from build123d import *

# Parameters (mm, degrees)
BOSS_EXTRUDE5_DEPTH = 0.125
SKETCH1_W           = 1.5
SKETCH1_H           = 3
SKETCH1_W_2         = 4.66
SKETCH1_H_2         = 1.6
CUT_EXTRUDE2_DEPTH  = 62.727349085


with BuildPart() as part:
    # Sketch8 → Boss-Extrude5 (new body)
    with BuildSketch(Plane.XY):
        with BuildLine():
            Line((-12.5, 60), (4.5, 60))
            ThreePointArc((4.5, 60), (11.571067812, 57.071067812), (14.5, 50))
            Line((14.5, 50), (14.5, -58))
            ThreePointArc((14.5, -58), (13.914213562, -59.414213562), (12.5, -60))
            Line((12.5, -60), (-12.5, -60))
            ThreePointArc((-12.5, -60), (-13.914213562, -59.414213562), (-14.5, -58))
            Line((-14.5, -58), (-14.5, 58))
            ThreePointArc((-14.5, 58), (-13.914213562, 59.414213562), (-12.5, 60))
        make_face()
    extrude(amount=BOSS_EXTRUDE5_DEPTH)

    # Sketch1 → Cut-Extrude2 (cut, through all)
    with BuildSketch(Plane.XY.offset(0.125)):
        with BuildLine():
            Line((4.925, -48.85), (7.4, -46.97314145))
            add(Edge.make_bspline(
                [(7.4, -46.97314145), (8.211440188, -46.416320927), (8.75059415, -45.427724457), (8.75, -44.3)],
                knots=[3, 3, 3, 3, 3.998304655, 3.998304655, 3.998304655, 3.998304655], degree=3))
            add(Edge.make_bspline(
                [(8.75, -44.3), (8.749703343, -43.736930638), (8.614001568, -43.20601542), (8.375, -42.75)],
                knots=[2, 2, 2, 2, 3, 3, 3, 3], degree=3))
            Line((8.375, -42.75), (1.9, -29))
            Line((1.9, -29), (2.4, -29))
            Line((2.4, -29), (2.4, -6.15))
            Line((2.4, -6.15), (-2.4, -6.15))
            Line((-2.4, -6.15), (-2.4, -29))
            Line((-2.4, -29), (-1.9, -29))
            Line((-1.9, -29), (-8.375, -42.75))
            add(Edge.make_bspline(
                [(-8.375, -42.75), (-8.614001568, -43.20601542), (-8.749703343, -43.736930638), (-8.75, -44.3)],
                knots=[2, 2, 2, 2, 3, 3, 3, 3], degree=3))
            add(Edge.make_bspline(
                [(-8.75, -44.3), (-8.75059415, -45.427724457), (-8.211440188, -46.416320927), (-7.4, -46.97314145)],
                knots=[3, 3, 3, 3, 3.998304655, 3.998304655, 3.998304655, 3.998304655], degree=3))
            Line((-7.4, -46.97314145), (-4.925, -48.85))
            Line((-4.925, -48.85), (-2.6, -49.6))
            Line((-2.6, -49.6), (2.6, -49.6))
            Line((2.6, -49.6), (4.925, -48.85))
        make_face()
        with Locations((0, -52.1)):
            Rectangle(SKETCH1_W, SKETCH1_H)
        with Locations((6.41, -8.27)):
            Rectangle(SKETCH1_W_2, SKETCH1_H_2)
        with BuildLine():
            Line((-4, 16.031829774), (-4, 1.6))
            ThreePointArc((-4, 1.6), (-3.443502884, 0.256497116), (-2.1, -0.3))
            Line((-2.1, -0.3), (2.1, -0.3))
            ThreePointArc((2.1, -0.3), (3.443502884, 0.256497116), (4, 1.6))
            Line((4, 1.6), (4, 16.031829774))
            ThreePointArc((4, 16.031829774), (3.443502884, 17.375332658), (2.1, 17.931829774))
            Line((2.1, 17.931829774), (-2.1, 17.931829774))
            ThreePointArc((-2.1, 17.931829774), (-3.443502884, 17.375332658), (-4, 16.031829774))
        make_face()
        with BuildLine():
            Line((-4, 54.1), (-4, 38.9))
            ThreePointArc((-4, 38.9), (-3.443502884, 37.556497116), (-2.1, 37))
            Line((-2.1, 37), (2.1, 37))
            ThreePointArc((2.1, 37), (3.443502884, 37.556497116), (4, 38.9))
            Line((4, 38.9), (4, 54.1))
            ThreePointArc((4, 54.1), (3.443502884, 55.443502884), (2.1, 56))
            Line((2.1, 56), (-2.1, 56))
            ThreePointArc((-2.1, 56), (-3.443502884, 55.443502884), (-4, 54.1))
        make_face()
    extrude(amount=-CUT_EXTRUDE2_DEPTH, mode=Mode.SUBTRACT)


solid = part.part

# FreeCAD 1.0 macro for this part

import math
import FreeCAD as App
import Part
import Sketcher
Q = App.Units.Quantity


def add_polygon(sketch, points):
    """Adds a closed chain of lines whose ends are joined by coincident constraints."""
    first, n = sketch.GeometryCount, len(points)
    for a, b in zip(points, points[1:] + points[:1]):
        sketch.addGeometry(Part.LineSegment(App.Vector(*a, 0), App.Vector(*b, 0)), False)
    for i in range(n):
        sketch.addConstraint(Sketcher.Constraint("Coincident", first + i, 2, first + (i + 1) % n, 1))

doc = App.newDocument("Part")
body = doc.addObject("PartDesign::Body", "Body")

sketch1 = body.newObject("Sketcher::SketchObject", "Sketch")
sketch1.AttachmentSupport = (doc.getObject("XY_Plane"), [""])
sketch1.MapMode = "FlatFace"
sketch1.addGeometry([
    Part.LineSegment(App.Vector(4.5, 60, 0), App.Vector(-12.5, 60, 0)),
    Part.ArcOfCircle(Part.Circle(App.Vector(-12.5, 58, 0), App.Vector(0, 0, 1), 2), math.radians(90), math.radians(180)),
    Part.LineSegment(App.Vector(-14.5, 58, 0), App.Vector(-14.5, -58, 0)),
    Part.ArcOfCircle(Part.Circle(App.Vector(-12.5, -58, 0), App.Vector(0, 0, 1), 2), math.radians(-180), math.radians(-90)),
    Part.LineSegment(App.Vector(-12.5, -60, 0), App.Vector(12.5, -60, 0)),
    Part.ArcOfCircle(Part.Circle(App.Vector(12.5, -58, 0), App.Vector(0, 0, 1), 2), math.radians(-90), math.radians(0)),
    Part.LineSegment(App.Vector(14.5, -58, 0), App.Vector(14.5, 50, 0)),
    Part.ArcOfCircle(Part.Circle(App.Vector(4.5, 50, 0), App.Vector(0, 0, 1), 10), math.radians(0), math.radians(90)),
], False)
sketch1.addConstraint([
    Sketcher.Constraint("Tangent", 0, 2, 1, 1),
    Sketcher.Constraint("Tangent", 1, 2, 2, 1),
    Sketcher.Constraint("Tangent", 2, 2, 3, 1),
    Sketcher.Constraint("Tangent", 3, 2, 4, 1),
    Sketcher.Constraint("Tangent", 4, 2, 5, 1),
    Sketcher.Constraint("Tangent", 5, 2, 6, 1),
    Sketcher.Constraint("Tangent", 6, 2, 7, 1),
    Sketcher.Constraint("Tangent", 7, 2, 0, 1),
    Sketcher.Constraint("Horizontal", 0),
    Sketcher.Constraint("Vertical", 2),
    Sketcher.Constraint("Horizontal", 4),
    Sketcher.Constraint("Vertical", 6),
    Sketcher.Constraint("Equal", 1, 3),
    Sketcher.Constraint("Equal", 3, 5),
    Sketcher.Constraint("Symmetric", 1, 3, 5, 3, -1, 1),
    Sketcher.Constraint("Radius", 1, Q("2 mm")),
    Sketcher.Constraint("Radius", 7, Q("10 mm")),
    Sketcher.Constraint("DistanceX", 0, 2, 0, 1, Q("17 mm")),
    Sketcher.Constraint("DistanceY", 2, 2, 2, 1, Q("116 mm")),
])
pad1 = body.newObject("PartDesign::Pad", "Pad")
pad1.Profile = sketch1
pad1.Length = 0.125

sketch2 = body.newObject("Sketcher::SketchObject", "Sketch001")
sketch2.AttachmentSupport = (doc.getObject("XY_Plane"), [""])
sketch2.MapMode = "FlatFace"
sketch2.AttachmentOffset = App.Placement(App.Vector(0, 0, 0.125), App.Rotation())
sketch2.addGeometry(Part.LineSegment(App.Vector(4.925, -48.85, 0), App.Vector(7.4, -46.973141, 0)), False)
sketch2.addGeometry(Part.BSplineCurve([App.Vector(7.4, -46.973141, 0), App.Vector(8.21144, -46.416321, 0), App.Vector(8.750594, -45.427724, 0), App.Vector(8.75, -44.3, 0)], [4, 4], [3, 3.998304655], False, 3, [1, 1, 1, 1], False), False)
sketch2.addGeometry(Part.BSplineCurve([App.Vector(8.75, -44.3, 0), App.Vector(8.749703, -43.736931, 0), App.Vector(8.614002, -43.206015, 0), App.Vector(8.375, -42.75, 0)], [4, 4], [2, 3], False, 3, [1, 1, 1, 1], False), False)
sketch2.addGeometry(Part.LineSegment(App.Vector(8.375, -42.75, 0), App.Vector(1.9, -29, 0)), False)
sketch2.addGeometry(Part.LineSegment(App.Vector(1.9, -29, 0), App.Vector(2.4, -29, 0)), False)
sketch2.addGeometry(Part.LineSegment(App.Vector(2.4, -29, 0), App.Vector(2.4, -6.15, 0)), False)
sketch2.addGeometry(Part.LineSegment(App.Vector(2.4, -6.15, 0), App.Vector(-2.4, -6.15, 0)), False)
sketch2.addGeometry(Part.LineSegment(App.Vector(-2.4, -6.15, 0), App.Vector(-2.4, -29, 0)), False)
sketch2.addGeometry(Part.LineSegment(App.Vector(-2.4, -29, 0), App.Vector(-1.9, -29, 0)), False)
sketch2.addGeometry(Part.LineSegment(App.Vector(-1.9, -29, 0), App.Vector(-8.375, -42.75, 0)), False)
sketch2.addGeometry(Part.BSplineCurve([App.Vector(-8.375, -42.75, 0), App.Vector(-8.614002, -43.206015, 0), App.Vector(-8.749703, -43.736931, 0), App.Vector(-8.75, -44.3, 0)], [4, 4], [2, 3], False, 3, [1, 1, 1, 1], False), False)
sketch2.addGeometry(Part.BSplineCurve([App.Vector(-8.75, -44.3, 0), App.Vector(-8.750594, -45.427724, 0), App.Vector(-8.21144, -46.416321, 0), App.Vector(-7.4, -46.973141, 0)], [4, 4], [3, 3.998304655], False, 3, [1, 1, 1, 1], False), False)
sketch2.addGeometry(Part.LineSegment(App.Vector(-7.4, -46.973141, 0), App.Vector(-4.925, -48.85, 0)), False)
sketch2.addGeometry(Part.LineSegment(App.Vector(-4.925, -48.85, 0), App.Vector(-2.6, -49.6, 0)), False)
sketch2.addGeometry(Part.LineSegment(App.Vector(-2.6, -49.6, 0), App.Vector(2.6, -49.6, 0)), False)
sketch2.addGeometry(Part.LineSegment(App.Vector(2.6, -49.6, 0), App.Vector(4.925, -48.85, 0)), False)
add_polygon(sketch2, [(-0.75, -50.6), (-0.75, -53.6), (0.75, -53.6), (0.75, -50.6)])
add_polygon(sketch2, [(4.08, -7.47), (4.08, -9.07), (8.74, -9.07), (8.74, -7.47)])
sketch2.addGeometry(Part.LineSegment(App.Vector(-4, 16.03183, 0), App.Vector(-4, 1.6, 0)), False)
sketch2.addGeometry(Part.ArcOfCircle(Part.Circle(App.Vector(-2.1, 1.6, 0), App.Vector(0, 0, 1), 1.9), math.radians(-180), math.radians(-90)), False)
sketch2.addGeometry(Part.LineSegment(App.Vector(-2.1, -0.3, 0), App.Vector(2.1, -0.3, 0)), False)
sketch2.addGeometry(Part.ArcOfCircle(Part.Circle(App.Vector(2.1, 1.6, 0), App.Vector(0, 0, 1), 1.9), math.radians(-90), math.radians(0)), False)
sketch2.addGeometry(Part.LineSegment(App.Vector(4, 1.6, 0), App.Vector(4, 16.03183, 0)), False)
sketch2.addGeometry(Part.ArcOfCircle(Part.Circle(App.Vector(2.1, 16.03183, 0), App.Vector(0, 0, 1), 1.9), math.radians(0), math.radians(90)), False)
sketch2.addGeometry(Part.LineSegment(App.Vector(2.1, 17.93183, 0), App.Vector(-2.1, 17.93183, 0)), False)
sketch2.addGeometry(Part.ArcOfCircle(Part.Circle(App.Vector(-2.1, 16.03183, 0), App.Vector(0, 0, 1), 1.9), math.radians(90), math.radians(180)), False)
sketch2.addGeometry(Part.LineSegment(App.Vector(-4, 54.1, 0), App.Vector(-4, 38.9, 0)), False)
sketch2.addGeometry(Part.ArcOfCircle(Part.Circle(App.Vector(-2.1, 38.9, 0), App.Vector(0, 0, 1), 1.9), math.radians(-180), math.radians(-90)), False)
sketch2.addGeometry(Part.LineSegment(App.Vector(-2.1, 37, 0), App.Vector(2.1, 37, 0)), False)
sketch2.addGeometry(Part.ArcOfCircle(Part.Circle(App.Vector(2.1, 38.9, 0), App.Vector(0, 0, 1), 1.9), math.radians(-90), math.radians(0)), False)
sketch2.addGeometry(Part.LineSegment(App.Vector(4, 38.9, 0), App.Vector(4, 54.1, 0)), False)
sketch2.addGeometry(Part.ArcOfCircle(Part.Circle(App.Vector(2.1, 54.1, 0), App.Vector(0, 0, 1), 1.9), math.radians(0), math.radians(90)), False)
sketch2.addGeometry(Part.LineSegment(App.Vector(2.1, 56, 0), App.Vector(-2.1, 56, 0)), False)
sketch2.addGeometry(Part.ArcOfCircle(Part.Circle(App.Vector(-2.1, 54.1, 0), App.Vector(0, 0, 1), 1.9), math.radians(90), math.radians(180)), False)
sketch2.addConstraint([
    Sketcher.Constraint("Block", 1),
    Sketcher.Constraint("Block", 2),
    Sketcher.Constraint("Block", 10),
    Sketcher.Constraint("Block", 11),
    Sketcher.Constraint("Coincident", 0, 2, 1, 1),
    Sketcher.Constraint("Coincident", 2, 2, 3, 1),
    Sketcher.Constraint("Coincident", 3, 2, 4, 1),
    Sketcher.Constraint("Coincident", 4, 2, 5, 1),
    Sketcher.Constraint("Coincident", 5, 2, 6, 1),
    Sketcher.Constraint("Coincident", 6, 2, 7, 1),
    Sketcher.Constraint("Coincident", 7, 2, 8, 1),
    Sketcher.Constraint("Coincident", 8, 2, 9, 1),
    Sketcher.Constraint("Coincident", 9, 2, 10, 1),
    Sketcher.Constraint("Coincident", 11, 2, 12, 1),
    Sketcher.Constraint("Coincident", 12, 2, 13, 1),
    Sketcher.Constraint("Coincident", 13, 2, 14, 1),
    Sketcher.Constraint("Coincident", 14, 2, 15, 1),
    Sketcher.Constraint("Coincident", 15, 2, 0, 1),
    Sketcher.Constraint("Tangent", 24, 2, 25, 1),
    Sketcher.Constraint("Tangent", 25, 2, 26, 1),
    Sketcher.Constraint("Tangent", 26, 2, 27, 1),
    Sketcher.Constraint("Tangent", 27, 2, 28, 1),
    Sketcher.Constraint("Tangent", 28, 2, 29, 1),
    Sketcher.Constraint("Tangent", 29, 2, 30, 1),
    Sketcher.Constraint("Tangent", 30, 2, 31, 1),
    Sketcher.Constraint("Tangent", 31, 2, 24, 1),
    Sketcher.Constraint("Tangent", 32, 2, 33, 1),
    Sketcher.Constraint("Tangent", 33, 2, 34, 1),
    Sketcher.Constraint("Tangent", 34, 2, 35, 1),
    Sketcher.Constraint("Tangent", 35, 2, 36, 1),
    Sketcher.Constraint("Tangent", 36, 2, 37, 1),
    Sketcher.Constraint("Tangent", 37, 2, 38, 1),
    Sketcher.Constraint("Tangent", 38, 2, 39, 1),
    Sketcher.Constraint("Tangent", 39, 2, 32, 1),
    Sketcher.Constraint("Horizontal", 4),
    Sketcher.Constraint("Vertical", 5),
    Sketcher.Constraint("Horizontal", 6),
    Sketcher.Constraint("Vertical", 7),
    Sketcher.Constraint("Horizontal", 8),
    Sketcher.Constraint("Horizontal", 14),
    Sketcher.Constraint("Vertical", 16),
    Sketcher.Constraint("Horizontal", 17),
    Sketcher.Constraint("Vertical", 18),
    Sketcher.Constraint("Horizontal", 19),
    Sketcher.Constraint("Vertical", 20),
    Sketcher.Constraint("Horizontal", 21),
    Sketcher.Constraint("Vertical", 22),
    Sketcher.Constraint("Horizontal", 23),
    Sketcher.Constraint("Vertical", 24),
    Sketcher.Constraint("Horizontal", 26),
    Sketcher.Constraint("Vertical", 28),
    Sketcher.Constraint("Horizontal", 30),
    Sketcher.Constraint("Vertical", 32),
    Sketcher.Constraint("Horizontal", 34),
    Sketcher.Constraint("Vertical", 36),
    Sketcher.Constraint("Horizontal", 38),
    Sketcher.Constraint("Equal", 25, 27),
    Sketcher.Constraint("Equal", 27, 29),
    Sketcher.Constraint("Equal", 29, 31),
    Sketcher.Constraint("Equal", 31, 33),
    Sketcher.Constraint("Equal", 33, 35),
    Sketcher.Constraint("Equal", 35, 37),
    Sketcher.Constraint("Equal", 37, 39),
    Sketcher.Constraint("Symmetric", 4, 2, 7, 2, -2),
    Sketcher.Constraint("Symmetric", 12, 2, 15, 2, -2),
    Sketcher.Constraint("Vertical", 31, 3, 33, 3),
    Sketcher.Constraint("Vertical", 29, 3, 35, 3),
    Sketcher.Constraint("Equal", 4, 8),
    Sketcher.Constraint("Equal", 13, 15),
    Sketcher.Constraint("Radius", 25, Q("1.9 mm")),
    Sketcher.Constraint("DistanceY", 16, 2, 16, 1, Q("3 mm")),
    Sketcher.Constraint("DistanceX", 4, 1, 4, 2, Q("0.5 mm")),
    Sketcher.Constraint("DistanceX", 6, 2, 6, 1, Q("4.8 mm")),
    Sketcher.Constraint("DistanceX", 14, 1, 14, 2, Q("5.2 mm")),
    Sketcher.Constraint("DistanceX", 17, 1, 17, 2, Q("1.5 mm")),
    Sketcher.Constraint("DistanceX", 26, 1, 26, 2, Q("4.2 mm")),
    Sketcher.Constraint("DistanceY", 20, 2, 20, 1, Q("1.6 mm")),
    Sketcher.Constraint("DistanceY", 32, 2, 32, 1, Q("15.2 mm")),
    Sketcher.Constraint("DistanceY", 3, 2, -1, 1, Q("29 mm")),
    Sketcher.Constraint("DistanceX", 24, 2, -1, 1, Q("4 mm")),
    Sketcher.Constraint("DistanceY", -1, 1, 33, 2, Q("37 mm")),
    Sketcher.Constraint("DistanceY", 16, 2, 13, 2, Q("4 mm")),
    Sketcher.Constraint("DistanceX", 21, 1, 21, 2, Q("4.66 mm")),
    Sketcher.Constraint("DistanceY", 5, 1, 5, 2, Q("22.85 mm")),
    Sketcher.Constraint("DistanceY", -1, 1, 25, 3, Q("1.6 mm")),
    Sketcher.Constraint("DistanceY", 13, 2, -1, 1, Q("49.6 mm")),
    Sketcher.Constraint("DistanceY", 12, 2, 9, 2, Q("6.1 mm")),
    Sketcher.Constraint("DistanceX", 9, 2, 15, 2, Q("13.3 mm")),
    Sketcher.Constraint("DistanceX", 16, 2, -1, 1, Q("0.75 mm")),
    Sketcher.Constraint("DistanceX", -1, 1, 20, 2, Q("4.08 mm")),
    Sketcher.Constraint("DistanceY", 20, 2, -1, 1, Q("9.07 mm")),
    Sketcher.Constraint("DistanceY", 24, 2, 24, 1, Q("14.43183 mm")),
])
pocket1 = body.newObject("PartDesign::Pocket", "Pocket")
pocket1.Profile = sketch2
pocket1.Type = "ThroughAll"

doc.recompute()
